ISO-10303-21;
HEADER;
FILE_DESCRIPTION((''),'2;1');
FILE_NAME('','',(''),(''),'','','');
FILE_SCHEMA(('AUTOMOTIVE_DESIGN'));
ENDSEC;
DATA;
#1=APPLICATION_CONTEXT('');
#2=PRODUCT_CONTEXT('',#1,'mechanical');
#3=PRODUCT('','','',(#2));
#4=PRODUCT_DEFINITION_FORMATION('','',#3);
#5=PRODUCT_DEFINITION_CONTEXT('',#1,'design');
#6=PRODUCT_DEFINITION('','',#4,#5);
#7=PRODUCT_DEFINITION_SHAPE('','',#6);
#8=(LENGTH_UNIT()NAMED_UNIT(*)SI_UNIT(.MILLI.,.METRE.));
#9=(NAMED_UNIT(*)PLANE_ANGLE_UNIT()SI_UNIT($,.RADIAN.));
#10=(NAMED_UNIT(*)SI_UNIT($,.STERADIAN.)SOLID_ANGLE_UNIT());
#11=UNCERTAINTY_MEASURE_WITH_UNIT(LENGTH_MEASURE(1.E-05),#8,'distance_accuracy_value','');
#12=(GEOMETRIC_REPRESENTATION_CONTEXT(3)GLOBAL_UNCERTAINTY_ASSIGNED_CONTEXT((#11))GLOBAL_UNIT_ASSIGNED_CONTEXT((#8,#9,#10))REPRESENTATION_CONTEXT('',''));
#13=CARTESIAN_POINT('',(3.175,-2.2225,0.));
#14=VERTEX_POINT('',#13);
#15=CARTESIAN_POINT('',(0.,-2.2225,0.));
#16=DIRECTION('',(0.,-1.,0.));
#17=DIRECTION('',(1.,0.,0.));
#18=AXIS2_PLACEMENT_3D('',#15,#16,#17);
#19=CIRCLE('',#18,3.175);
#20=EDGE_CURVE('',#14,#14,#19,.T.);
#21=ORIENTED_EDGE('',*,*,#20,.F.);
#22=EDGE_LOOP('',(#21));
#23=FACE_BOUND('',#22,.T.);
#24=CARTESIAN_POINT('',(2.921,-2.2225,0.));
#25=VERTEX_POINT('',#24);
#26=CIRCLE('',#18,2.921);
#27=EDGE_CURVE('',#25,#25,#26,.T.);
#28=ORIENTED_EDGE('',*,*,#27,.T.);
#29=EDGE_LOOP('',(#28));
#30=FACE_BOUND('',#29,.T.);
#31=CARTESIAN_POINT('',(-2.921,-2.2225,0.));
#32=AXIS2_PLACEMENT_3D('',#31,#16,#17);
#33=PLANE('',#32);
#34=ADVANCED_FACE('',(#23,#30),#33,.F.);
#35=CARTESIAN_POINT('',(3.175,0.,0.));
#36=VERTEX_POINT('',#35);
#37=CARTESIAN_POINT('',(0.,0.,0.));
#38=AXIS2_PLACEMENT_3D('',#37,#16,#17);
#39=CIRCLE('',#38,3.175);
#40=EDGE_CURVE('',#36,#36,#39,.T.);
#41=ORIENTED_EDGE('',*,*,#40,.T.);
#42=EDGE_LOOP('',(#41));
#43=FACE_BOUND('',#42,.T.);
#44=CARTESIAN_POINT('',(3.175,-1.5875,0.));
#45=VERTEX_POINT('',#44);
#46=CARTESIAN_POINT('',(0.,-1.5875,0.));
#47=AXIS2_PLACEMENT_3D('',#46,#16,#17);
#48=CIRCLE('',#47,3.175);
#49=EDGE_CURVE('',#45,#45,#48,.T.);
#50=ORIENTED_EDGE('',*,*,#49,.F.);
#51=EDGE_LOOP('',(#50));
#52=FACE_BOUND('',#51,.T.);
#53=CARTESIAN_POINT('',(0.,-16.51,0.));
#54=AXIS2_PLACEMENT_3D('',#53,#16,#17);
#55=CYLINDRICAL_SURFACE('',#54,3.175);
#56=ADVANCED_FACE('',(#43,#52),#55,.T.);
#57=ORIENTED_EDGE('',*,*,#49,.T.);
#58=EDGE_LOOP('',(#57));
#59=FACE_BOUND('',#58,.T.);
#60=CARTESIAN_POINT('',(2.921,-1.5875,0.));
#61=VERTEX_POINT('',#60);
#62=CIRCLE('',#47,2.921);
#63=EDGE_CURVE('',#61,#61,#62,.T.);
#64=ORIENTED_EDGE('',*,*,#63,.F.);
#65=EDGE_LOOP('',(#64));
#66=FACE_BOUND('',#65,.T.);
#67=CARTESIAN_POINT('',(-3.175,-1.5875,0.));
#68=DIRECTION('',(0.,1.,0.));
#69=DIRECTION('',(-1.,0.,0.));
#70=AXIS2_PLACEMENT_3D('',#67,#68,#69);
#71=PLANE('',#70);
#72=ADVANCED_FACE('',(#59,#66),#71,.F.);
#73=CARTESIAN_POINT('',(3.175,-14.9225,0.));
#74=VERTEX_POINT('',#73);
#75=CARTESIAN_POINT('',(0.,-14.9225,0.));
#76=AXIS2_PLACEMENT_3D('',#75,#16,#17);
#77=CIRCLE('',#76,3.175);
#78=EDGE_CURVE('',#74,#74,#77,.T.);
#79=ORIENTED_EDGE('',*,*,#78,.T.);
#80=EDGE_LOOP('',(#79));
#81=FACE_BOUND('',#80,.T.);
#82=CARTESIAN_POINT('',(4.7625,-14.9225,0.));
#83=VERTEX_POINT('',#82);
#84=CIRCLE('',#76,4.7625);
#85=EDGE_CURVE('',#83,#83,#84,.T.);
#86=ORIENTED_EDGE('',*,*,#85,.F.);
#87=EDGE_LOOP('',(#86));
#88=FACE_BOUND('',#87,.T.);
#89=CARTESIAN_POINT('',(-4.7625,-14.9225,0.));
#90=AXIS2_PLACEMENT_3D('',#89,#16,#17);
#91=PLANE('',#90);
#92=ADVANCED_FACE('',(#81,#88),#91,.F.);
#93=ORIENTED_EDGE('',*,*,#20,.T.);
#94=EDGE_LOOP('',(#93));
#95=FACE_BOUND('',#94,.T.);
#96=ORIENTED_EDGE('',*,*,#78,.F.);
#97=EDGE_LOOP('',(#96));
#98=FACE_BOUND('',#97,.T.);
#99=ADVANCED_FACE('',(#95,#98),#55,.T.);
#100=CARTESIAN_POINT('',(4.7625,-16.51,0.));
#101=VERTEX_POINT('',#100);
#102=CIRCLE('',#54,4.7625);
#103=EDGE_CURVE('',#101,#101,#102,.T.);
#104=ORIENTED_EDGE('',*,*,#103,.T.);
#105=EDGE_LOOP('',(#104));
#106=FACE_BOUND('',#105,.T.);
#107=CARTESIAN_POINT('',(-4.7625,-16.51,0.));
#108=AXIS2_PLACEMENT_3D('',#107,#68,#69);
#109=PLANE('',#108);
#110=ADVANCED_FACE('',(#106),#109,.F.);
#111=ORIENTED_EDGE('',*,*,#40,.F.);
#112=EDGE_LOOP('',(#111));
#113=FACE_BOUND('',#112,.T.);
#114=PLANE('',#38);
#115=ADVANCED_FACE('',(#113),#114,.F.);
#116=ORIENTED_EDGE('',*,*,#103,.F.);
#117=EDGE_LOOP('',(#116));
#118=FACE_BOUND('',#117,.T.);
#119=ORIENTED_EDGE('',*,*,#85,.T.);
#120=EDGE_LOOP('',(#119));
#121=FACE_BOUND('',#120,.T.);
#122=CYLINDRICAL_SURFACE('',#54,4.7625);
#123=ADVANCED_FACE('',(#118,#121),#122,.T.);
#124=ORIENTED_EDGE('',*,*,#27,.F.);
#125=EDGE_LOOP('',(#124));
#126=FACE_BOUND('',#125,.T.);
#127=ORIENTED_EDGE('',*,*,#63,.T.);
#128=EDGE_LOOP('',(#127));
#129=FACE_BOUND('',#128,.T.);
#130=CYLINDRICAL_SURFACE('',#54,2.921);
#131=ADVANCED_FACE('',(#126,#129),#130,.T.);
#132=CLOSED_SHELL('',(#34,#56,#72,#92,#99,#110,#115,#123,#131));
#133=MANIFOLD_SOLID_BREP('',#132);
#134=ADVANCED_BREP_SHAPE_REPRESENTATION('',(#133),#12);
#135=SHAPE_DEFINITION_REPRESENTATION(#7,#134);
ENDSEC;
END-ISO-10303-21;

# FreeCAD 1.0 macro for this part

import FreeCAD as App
import Part
import Sketcher
Q = App.Units.Quantity


def add_polygon(sketch, points):
    """Adds a closed chain of lines whose ends are joined by coincident constraints."""
    first, n = sketch.GeometryCount, len(points)
    for a, b in zip(points, points[1:] + points[:1]):
        sketch.addGeometry(Part.LineSegment(App.Vector(*a, 0), App.Vector(*b, 0)), False)
    for i in range(n):
        sketch.addConstraint(Sketcher.Constraint("Coincident", first + i, 2, first + (i + 1) % n, 1))

doc = App.newDocument("Part")
body = doc.addObject("PartDesign::Body", "Body")

# Sketch on XY plane
sketch1 = doc.addObject("Sketcher::SketchObject", "Sketch")
body.addObject(sketch1)
sketch1.AttachmentSupport = (doc.XY_Plane, [""])
sketch1.MapMode = "FlatFace"
add_polygon(sketch1, [(0, 0), (-3.175, 0), (-3.175, -1.5875), (-2.921, -1.5875), (-2.921, -2.2225), (-3.175, -2.2225), (-3.175, -14.9225), (-4.7625, -14.9225), (-4.7625, -16.51), (0, -16.51)])  # lines 0-9
sketch1.addConstraint([
    Sketcher.Constraint("Horizontal", 0),
    Sketcher.Constraint("Vertical", 1),
    Sketcher.Constraint("Horizontal", 2),
    Sketcher.Constraint("Vertical", 3),
    Sketcher.Constraint("Horizontal", 4),
    Sketcher.Constraint("Vertical", 5),
    Sketcher.Constraint("Horizontal", 6),
    Sketcher.Constraint("Vertical", 7),
    Sketcher.Constraint("Horizontal", 8),
    Sketcher.Constraint("Vertical", 9),
    Sketcher.Constraint("Coincident", 9, 2, -1, 1),
    Sketcher.Constraint("Vertical", 1, 2, 4, 2),
    Sketcher.Constraint("Equal", 6, 1),
    Sketcher.Constraint("Equal", 1, 7),
    Sketcher.Constraint("DistanceY", 5, 2, 5, 1, Q("0.5 in")),
    Sketcher.Constraint("DistanceX", 2, 1, 2, 2, Q("0.01 in")),
    Sketcher.Constraint("DistanceY", 9, 1, 9, 2, Q("0.65 in")),
    Sketcher.Constraint("DistanceX", 0, 2, 0, 1, Q("0.125 in")),
    Sketcher.Constraint("DistanceX", 6, 2, 6, 1, Q("0.0625 in")),
])
revolution = doc.addObject("PartDesign::Revolution", "Revolution")
body.addObject(revolution)
revolution.Profile = sketch1
revolution.ReferenceAxis = (sketch1, ["V_Axis"])
revolution.Angle = 360

doc.recompute()
